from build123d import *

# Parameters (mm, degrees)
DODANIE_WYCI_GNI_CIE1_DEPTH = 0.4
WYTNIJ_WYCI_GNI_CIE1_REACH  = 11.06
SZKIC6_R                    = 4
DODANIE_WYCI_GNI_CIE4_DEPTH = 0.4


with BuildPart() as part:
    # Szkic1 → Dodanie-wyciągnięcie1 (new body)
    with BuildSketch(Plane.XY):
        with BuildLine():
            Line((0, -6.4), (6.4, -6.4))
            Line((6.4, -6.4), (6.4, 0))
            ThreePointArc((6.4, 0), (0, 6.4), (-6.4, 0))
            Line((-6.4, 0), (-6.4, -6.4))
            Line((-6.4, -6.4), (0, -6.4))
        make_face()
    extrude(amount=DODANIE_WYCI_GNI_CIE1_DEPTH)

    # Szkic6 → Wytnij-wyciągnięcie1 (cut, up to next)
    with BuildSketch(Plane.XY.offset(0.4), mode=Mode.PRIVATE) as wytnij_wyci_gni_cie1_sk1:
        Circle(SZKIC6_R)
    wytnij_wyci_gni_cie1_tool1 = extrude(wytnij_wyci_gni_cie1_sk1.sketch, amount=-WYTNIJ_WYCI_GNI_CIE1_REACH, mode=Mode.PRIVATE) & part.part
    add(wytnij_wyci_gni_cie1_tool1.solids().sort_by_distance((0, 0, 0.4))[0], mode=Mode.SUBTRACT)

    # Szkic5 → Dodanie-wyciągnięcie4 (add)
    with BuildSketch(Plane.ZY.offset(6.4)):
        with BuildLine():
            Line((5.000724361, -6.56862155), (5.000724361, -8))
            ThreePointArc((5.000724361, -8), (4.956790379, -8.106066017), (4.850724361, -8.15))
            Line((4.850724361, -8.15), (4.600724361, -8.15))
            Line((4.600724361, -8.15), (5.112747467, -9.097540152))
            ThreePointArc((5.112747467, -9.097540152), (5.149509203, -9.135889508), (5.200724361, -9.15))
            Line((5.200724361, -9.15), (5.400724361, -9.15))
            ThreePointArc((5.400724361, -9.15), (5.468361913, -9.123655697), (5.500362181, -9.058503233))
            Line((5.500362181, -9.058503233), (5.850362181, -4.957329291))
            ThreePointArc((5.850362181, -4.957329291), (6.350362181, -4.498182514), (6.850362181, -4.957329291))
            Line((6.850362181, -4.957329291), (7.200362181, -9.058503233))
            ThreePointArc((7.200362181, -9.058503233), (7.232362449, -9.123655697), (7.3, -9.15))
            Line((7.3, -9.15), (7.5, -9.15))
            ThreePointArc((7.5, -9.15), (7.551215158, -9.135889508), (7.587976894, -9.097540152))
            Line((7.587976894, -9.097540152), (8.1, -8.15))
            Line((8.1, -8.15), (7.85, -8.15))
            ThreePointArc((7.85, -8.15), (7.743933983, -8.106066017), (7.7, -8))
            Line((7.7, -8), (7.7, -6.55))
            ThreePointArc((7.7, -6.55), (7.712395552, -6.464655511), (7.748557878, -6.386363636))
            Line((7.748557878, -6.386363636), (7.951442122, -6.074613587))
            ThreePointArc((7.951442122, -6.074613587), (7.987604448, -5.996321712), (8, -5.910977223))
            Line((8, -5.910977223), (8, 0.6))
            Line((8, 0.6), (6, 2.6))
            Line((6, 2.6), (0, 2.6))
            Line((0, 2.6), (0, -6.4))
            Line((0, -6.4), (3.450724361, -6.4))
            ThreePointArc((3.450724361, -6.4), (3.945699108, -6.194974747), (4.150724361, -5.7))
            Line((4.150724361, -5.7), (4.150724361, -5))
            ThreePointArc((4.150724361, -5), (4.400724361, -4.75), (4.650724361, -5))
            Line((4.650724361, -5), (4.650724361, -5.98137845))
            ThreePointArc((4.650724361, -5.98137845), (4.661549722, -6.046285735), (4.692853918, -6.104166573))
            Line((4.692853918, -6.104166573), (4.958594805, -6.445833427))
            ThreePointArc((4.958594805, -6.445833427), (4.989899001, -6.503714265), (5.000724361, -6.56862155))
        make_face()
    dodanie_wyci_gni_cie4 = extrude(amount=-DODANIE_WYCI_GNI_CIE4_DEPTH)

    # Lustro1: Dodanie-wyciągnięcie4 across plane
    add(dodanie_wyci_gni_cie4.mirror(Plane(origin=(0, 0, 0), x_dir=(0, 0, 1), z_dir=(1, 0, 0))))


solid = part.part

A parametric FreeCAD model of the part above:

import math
import FreeCAD as App
import Part
import Sketcher
from FreeCAD import Vector
Q = App.Units.Quantity

doc = App.newDocument("Part")
body = doc.addObject("PartDesign::Body", "Body")

sketch1 = body.newObject("Sketcher::SketchObject", "Sketch")
sketch1.AttachmentSupport = (doc.getObject("XY_Plane"), [""])
sketch1.MapMode = "FlatFace"
sketch1.addGeometry([
    Part.LineSegment(Vector(6.4, -6.4, 0), Vector(6.4, 0, 0)),
    Part.ArcOfCircle(Part.Circle(Vector(0, 0, 0), Vector(0, 0, 1), 6.4), math.radians(0), math.radians(180)),
    Part.LineSegment(Vector(-6.4, 0, 0), Vector(-6.4, -6.4, 0)),
    Part.LineSegment(Vector(-6.4, -6.4, 0), Vector(6.4, -6.4, 0)),
], False)
sketch1.addConstraint([
    Sketcher.Constraint("Tangent", 0, 2, 1, 1),
    Sketcher.Constraint("Tangent", 1, 2, 2, 1),
    Sketcher.Constraint("Coincident", 2, 2, 3, 1),
    Sketcher.Constraint("Coincident", 3, 2, 0, 1),
    Sketcher.Constraint("Vertical", 0),
    Sketcher.Constraint("Vertical", 2),
    Sketcher.Constraint("Horizontal", 3),
    Sketcher.Constraint("Coincident", 1, 3, -1, 1),
    Sketcher.Constraint("Radius", 1, Q("6.4 mm")),
    Sketcher.Constraint("DistanceY", 0, 1, 0, 2, Q("6.4 mm")),
])
pad1 = body.newObject("PartDesign::Pad", "Pad")
pad1.Profile = sketch1
pad1.Length = 0.4

sketch2 = body.newObject("Sketcher::SketchObject", "Sketch001")
sketch2.AttachmentSupport = (doc.getObject("XY_Plane"), [""])
sketch2.MapMode = "FlatFace"
sketch2.AttachmentOffset = App.Placement(Vector(0, 0, 0.4), App.Rotation())
sketch2.addGeometry(Part.Circle(Vector(0, 0, 0), Vector(0, 0, 1), 4), False)
sketch2.addConstraint([
    Sketcher.Constraint("Coincident", 0, 3, -1, 1),
    Sketcher.Constraint("Diameter", 0, Q("8 mm")),
])
pocket1 = body.newObject("PartDesign::Pocket", "Pocket")
pocket1.Profile = sketch2
pocket1.Type = "UpToFirst"

sketch3 = body.newObject("Sketcher::SketchObject", "Sketch002")
sketch3.AttachmentSupport = (doc.getObject("YZ_Plane"), [""])
sketch3.MapMode = "FlatFace"
sketch3.AttachmentOffset = App.Placement(Vector(0, 0, -6.4), App.Rotation())
sketch3.addGeometry([
    Part.LineSegment(Vector(-6.568622, 5.000724, 0), Vector(-8, 5.000724, 0)),
    Part.ArcOfCircle(Part.Circle(Vector(-8, 4.850724, 0), Vector(0, 0, 1), 0.15), math.radians(90), math.radians(180)),
    Part.LineSegment(Vector(-8.15, 4.850724, 0), Vector(-8.15, 4.600724, 0)),
    Part.LineSegment(Vector(-8.15, 4.600724, 0), Vector(-9.09754, 5.112747, 0)),
    Part.ArcOfCircle(Part.Circle(Vector(-9.05, 5.200724, 0), Vector(0, 0, 1), 0.1), math.radians(180), math.radians(241.614504)),
    Part.LineSegment(Vector(-9.15, 5.200724, 0), Vector(-9.15, 5.400724, 0)),
    Part.ArcOfCircle(Part.Circle(Vector(-9.05, 5.400724, 0), Vector(0, 0, 1), 0.1), math.radians(94.877883), math.radians(180.000001)),
    Part.LineSegment(Vector(-9.058503, 5.500362, 0), Vector(-4.957329, 5.850362, 0)),
    Part.ArcOfCircle(Part.Circle(Vector(-5, 6.350362, 0), Vector(0, 0, 1), 0.501817), math.radians(-85.122116), math.radians(85.122116)),
    Part.LineSegment(Vector(-4.957329, 6.850362, 0), Vector(-9.058503, 7.200362, 0)),
    Part.ArcOfCircle(Part.Circle(Vector(-9.05, 7.3, 0), Vector(0, 0, 1), 0.1), math.radians(180), math.radians(265.122117)),
    Part.LineSegment(Vector(-9.15, 7.3, 0), Vector(-9.15, 7.5, 0)),
    Part.ArcOfCircle(Part.Circle(Vector(-9.05, 7.5, 0), Vector(0, 0, 1), 0.1), math.radians(118.385496), math.radians(180)),
    Part.LineSegment(Vector(-9.09754, 7.587977, 0), Vector(-8.15, 8.1, 0)),
    Part.LineSegment(Vector(-8.15, 8.1, 0), Vector(-8.15, 7.85, 0)),
    Part.ArcOfCircle(Part.Circle(Vector(-8, 7.85, 0), Vector(0, 0, 1), 0.15), math.radians(-180), math.radians(-90)),
    Part.LineSegment(Vector(-8, 7.7, 0), Vector(-6.55, 7.7, 0)),
    Part.ArcOfCircle(Part.Circle(Vector(-6.55, 8, 0), Vector(0, 0, 1), 0.3), math.radians(-90.000001), math.radians(-56.944269)),
    Part.LineSegment(Vector(-6.386364, 7.748558, 0), Vector(-6.074614, 7.951442, 0)),
    Part.ArcOfCircle(Part.Circle(Vector(-5.910977, 7.7, 0), Vector(0, 0, 1), 0.3), math.radians(89.999999), math.radians(123.055731)),
    Part.LineSegment(Vector(-5.910977, 8, 0), Vector(0.6, 8, 0)),
    Part.LineSegment(Vector(0.6, 8, 0), Vector(2.6, 6, 0)),
    Part.LineSegment(Vector(2.6, 6, 0), Vector(2.6, 0, 0)),
    Part.LineSegment(Vector(2.6, 0, 0), Vector(-6.4, 0, 0)),
    Part.LineSegment(Vector(-6.4, 0, 0), Vector(-6.4, 3.450724, 0)),
    Part.ArcOfCircle(Part.Circle(Vector(-5.7, 3.450724, 0), Vector(0, 0, 1), 0.7), math.radians(90), math.radians(180)),
    Part.LineSegment(Vector(-5.7, 4.150724, 0), Vector(-5, 4.150724, 0)),
    Part.ArcOfCircle(Part.Circle(Vector(-5, 4.400724, 0), Vector(0, 0, 1), 0.25), math.radians(-90), math.radians(90)),
    Part.LineSegment(Vector(-5, 4.650724, 0), Vector(-5.981378, 4.650724, 0)),
    Part.ArcOfCircle(Part.Circle(Vector(-5.981378, 4.850724, 0), Vector(0, 0, 1), 0.2), math.radians(-127.874983), math.radians(-90.000001)),
    Part.LineSegment(Vector(-6.104167, 4.692854, 0), Vector(-6.445833, 4.958595, 0)),
    Part.ArcOfCircle(Part.Circle(Vector(-6.568622, 4.800724, 0), Vector(0, 0, 1), 0.2), math.radians(52.125017), math.radians(90)),
], False)
sketch3.addConstraint([
    Sketcher.Constraint("Tangent", 0, 2, 1, 1),
    Sketcher.Constraint("Tangent", 1, 2, 2, 1),
    Sketcher.Constraint("Coincident", 2, 2, 3, 1),
    Sketcher.Constraint("Tangent", 3, 2, 4, 2),
    Sketcher.Constraint("Tangent", 4, 1, 5, 1),
    Sketcher.Constraint("Tangent", 5, 2, 6, 2),
    Sketcher.Constraint("Tangent", 6, 1, 7, 1),
    Sketcher.Constraint("Tangent", 7, 2, 8, 1),
    Sketcher.Constraint("Tangent", 8, 2, 9, 1),
    Sketcher.Constraint("Tangent", 9, 2, 10, 2),
    Sketcher.Constraint("Tangent", 10, 1, 11, 1),
    Sketcher.Constraint("Tangent", 11, 2, 12, 2),
    Sketcher.Constraint("Tangent", 12, 1, 13, 1),
    Sketcher.Constraint("Coincident", 13, 2, 14, 1),
    Sketcher.Constraint("Tangent", 14, 2, 15, 1),
    Sketcher.Constraint("Tangent", 15, 2, 16, 1),
    Sketcher.Constraint("Tangent", 16, 2, 17, 1),
    Sketcher.Constraint("Tangent", 17, 2, 18, 1),
    Sketcher.Constraint("Tangent", 18, 2, 19, 2),
    Sketcher.Constraint("Tangent", 19, 1, 20, 1),
    Sketcher.Constraint("Coincident", 20, 2, 21, 1),
    Sketcher.Constraint("Coincident", 21, 2, 22, 1),
    Sketcher.Constraint("Coincident", 22, 2, 23, 1),
    Sketcher.Constraint("Coincident", 23, 2, 24, 1),
    Sketcher.Constraint("Tangent", 24, 2, 25, 2),
    Sketcher.Constraint("Tangent", 25, 1, 26, 1),
    Sketcher.Constraint("Tangent", 26, 2, 27, 1),
    Sketcher.Constraint("Tangent", 27, 2, 28, 1),
    Sketcher.Constraint("Tangent", 28, 2, 29, 2),
    Sketcher.Constraint("Tangent", 29, 1, 30, 1),
    Sketcher.Constraint("Tangent", 30, 2, 31, 1),
    Sketcher.Constraint("Tangent", 31, 2, 0, 1),
    Sketcher.Constraint("Horizontal", 0),
    Sketcher.Constraint("Vertical", 2),
    Sketcher.Constraint("Vertical", 5),
    Sketcher.Constraint("Vertical", 11),
    Sketcher.Constraint("Vertical", 14),
    Sketcher.Constraint("Horizontal", 16),
    Sketcher.Constraint("Horizontal", 20),
    Sketcher.Constraint("Vertical", 22),
    Sketcher.Constraint("Horizontal", 23),
    Sketcher.Constraint("Vertical", 24),
    Sketcher.Constraint("Horizontal", 26),
    Sketcher.Constraint("Horizontal", 28),
    Sketcher.Constraint("Equal", 4, 6),
    Sketcher.Constraint("Equal", 6, 10),
    Sketcher.Constraint("Equal", 10, 12),
    Sketcher.Constraint("Equal", 1, 15),
    Sketcher.Constraint("Equal", 17, 19),
    Sketcher.Constraint("Equal", 29, 31),
    Sketcher.Constraint("PointOnObject", 22, 2, -1),
    Sketcher.Constraint("Horizontal", 1, 3, 29, 3),
    Sketcher.Constraint("Horizontal", 19, 3, 15, 2),
    Sketcher.Constraint("Vertical", 6, 3, 10, 3),
    Sketcher.Constraint("Vertical", 1, 3, 15, 3),
    Sketcher.Constraint("Vertical", 8, 3, 27, 3),
    Sketcher.Constraint("Vertical", 7, 2, 8, 2),
    Sketcher.Constraint("Vertical", 3, 2, 12, 1),
    Sketcher.Constraint("Equal", 5, 11),
    Sketcher.Constraint("Equal", 2, 14),
    Sketcher.Constraint("Radius", 4, Q("0.1 mm")),
    Sketcher.Constraint("Radius", 17, Q("0.3 mm")),
    Sketcher.Constraint("Radius", 25, Q("0.7 mm")),
    Sketcher.Constraint("Radius", 29, Q("0.2 mm")),
    Sketcher.Constraint("DistanceX", 23, 2, 23, 1, Q("9 mm")),
    Sketcher.Constraint("DistanceY", 22, 2, 22, 1, Q("6 mm")),
    Sketcher.Constraint("Angle", 21, Q("-45 deg")),
    Sketcher.Constraint("Radius", 1, Q("0.15 mm")),
    Sketcher.Constraint("Radius", 27, Q("0.25 mm")),
    Sketcher.Constraint("DistanceX", 26, 1, 26, 2, Q("0.7 mm")),
    Sketcher.Constraint("DistanceY", 5, 1, 5, 2, Q("0.2 mm")),
    Sketcher.Constraint("DistanceX", 1, 3, -1, 1, Q("8 mm")),
    Sketcher.Constraint("DistanceX", 8, 3, -1, 1, Q("5 mm")),
    Sketcher.Constraint("DistanceY", -1, 1, 17, 3, Q("8 mm")),
    Sketcher.Constraint("DistanceX", 4, 1, 1, 2, Q("1 mm")),
    Sketcher.Constraint("DistanceY", 7, 2, 8, 2, Q("1 mm")),
    Sketcher.Constraint("DistanceX", 16, 1, 16, 2, Q("1.45 mm")),
    Sketcher.Constraint("DistanceY", 2, 2, 2, 1, Q("0.25 mm")),
    Sketcher.Constraint("DistanceY", -1, 1, 10, 3, Q("7.3 mm")),
    Sketcher.Constraint("DistanceY", 6, 1, 9, 2, Q("1.7 mm")),
    Sketcher.Constraint("DistanceX", 0, 2, 0, 1, Q("1.431378 mm")),
    Sketcher.Constraint("DistanceX", 28, 2, 28, 1, Q("0.981378 mm")),
    Sketcher.Constraint("DistanceX", 29, 3, 19, 3, Q("0.070401 mm")),
])
pad2 = body.newObject("PartDesign::Pad", "Pad001")
pad2.Profile = sketch3
pad2.Length = 0.4
doc.recompute()

mirrored = body.newObject("PartDesign::Mirrored", "Mirrored")
mirrored.Originals = [pad2]
mirrored.MirrorPlane = (doc.getObject("YZ_Plane"), [""])
body.Tip = mirrored

doc.recompute()
